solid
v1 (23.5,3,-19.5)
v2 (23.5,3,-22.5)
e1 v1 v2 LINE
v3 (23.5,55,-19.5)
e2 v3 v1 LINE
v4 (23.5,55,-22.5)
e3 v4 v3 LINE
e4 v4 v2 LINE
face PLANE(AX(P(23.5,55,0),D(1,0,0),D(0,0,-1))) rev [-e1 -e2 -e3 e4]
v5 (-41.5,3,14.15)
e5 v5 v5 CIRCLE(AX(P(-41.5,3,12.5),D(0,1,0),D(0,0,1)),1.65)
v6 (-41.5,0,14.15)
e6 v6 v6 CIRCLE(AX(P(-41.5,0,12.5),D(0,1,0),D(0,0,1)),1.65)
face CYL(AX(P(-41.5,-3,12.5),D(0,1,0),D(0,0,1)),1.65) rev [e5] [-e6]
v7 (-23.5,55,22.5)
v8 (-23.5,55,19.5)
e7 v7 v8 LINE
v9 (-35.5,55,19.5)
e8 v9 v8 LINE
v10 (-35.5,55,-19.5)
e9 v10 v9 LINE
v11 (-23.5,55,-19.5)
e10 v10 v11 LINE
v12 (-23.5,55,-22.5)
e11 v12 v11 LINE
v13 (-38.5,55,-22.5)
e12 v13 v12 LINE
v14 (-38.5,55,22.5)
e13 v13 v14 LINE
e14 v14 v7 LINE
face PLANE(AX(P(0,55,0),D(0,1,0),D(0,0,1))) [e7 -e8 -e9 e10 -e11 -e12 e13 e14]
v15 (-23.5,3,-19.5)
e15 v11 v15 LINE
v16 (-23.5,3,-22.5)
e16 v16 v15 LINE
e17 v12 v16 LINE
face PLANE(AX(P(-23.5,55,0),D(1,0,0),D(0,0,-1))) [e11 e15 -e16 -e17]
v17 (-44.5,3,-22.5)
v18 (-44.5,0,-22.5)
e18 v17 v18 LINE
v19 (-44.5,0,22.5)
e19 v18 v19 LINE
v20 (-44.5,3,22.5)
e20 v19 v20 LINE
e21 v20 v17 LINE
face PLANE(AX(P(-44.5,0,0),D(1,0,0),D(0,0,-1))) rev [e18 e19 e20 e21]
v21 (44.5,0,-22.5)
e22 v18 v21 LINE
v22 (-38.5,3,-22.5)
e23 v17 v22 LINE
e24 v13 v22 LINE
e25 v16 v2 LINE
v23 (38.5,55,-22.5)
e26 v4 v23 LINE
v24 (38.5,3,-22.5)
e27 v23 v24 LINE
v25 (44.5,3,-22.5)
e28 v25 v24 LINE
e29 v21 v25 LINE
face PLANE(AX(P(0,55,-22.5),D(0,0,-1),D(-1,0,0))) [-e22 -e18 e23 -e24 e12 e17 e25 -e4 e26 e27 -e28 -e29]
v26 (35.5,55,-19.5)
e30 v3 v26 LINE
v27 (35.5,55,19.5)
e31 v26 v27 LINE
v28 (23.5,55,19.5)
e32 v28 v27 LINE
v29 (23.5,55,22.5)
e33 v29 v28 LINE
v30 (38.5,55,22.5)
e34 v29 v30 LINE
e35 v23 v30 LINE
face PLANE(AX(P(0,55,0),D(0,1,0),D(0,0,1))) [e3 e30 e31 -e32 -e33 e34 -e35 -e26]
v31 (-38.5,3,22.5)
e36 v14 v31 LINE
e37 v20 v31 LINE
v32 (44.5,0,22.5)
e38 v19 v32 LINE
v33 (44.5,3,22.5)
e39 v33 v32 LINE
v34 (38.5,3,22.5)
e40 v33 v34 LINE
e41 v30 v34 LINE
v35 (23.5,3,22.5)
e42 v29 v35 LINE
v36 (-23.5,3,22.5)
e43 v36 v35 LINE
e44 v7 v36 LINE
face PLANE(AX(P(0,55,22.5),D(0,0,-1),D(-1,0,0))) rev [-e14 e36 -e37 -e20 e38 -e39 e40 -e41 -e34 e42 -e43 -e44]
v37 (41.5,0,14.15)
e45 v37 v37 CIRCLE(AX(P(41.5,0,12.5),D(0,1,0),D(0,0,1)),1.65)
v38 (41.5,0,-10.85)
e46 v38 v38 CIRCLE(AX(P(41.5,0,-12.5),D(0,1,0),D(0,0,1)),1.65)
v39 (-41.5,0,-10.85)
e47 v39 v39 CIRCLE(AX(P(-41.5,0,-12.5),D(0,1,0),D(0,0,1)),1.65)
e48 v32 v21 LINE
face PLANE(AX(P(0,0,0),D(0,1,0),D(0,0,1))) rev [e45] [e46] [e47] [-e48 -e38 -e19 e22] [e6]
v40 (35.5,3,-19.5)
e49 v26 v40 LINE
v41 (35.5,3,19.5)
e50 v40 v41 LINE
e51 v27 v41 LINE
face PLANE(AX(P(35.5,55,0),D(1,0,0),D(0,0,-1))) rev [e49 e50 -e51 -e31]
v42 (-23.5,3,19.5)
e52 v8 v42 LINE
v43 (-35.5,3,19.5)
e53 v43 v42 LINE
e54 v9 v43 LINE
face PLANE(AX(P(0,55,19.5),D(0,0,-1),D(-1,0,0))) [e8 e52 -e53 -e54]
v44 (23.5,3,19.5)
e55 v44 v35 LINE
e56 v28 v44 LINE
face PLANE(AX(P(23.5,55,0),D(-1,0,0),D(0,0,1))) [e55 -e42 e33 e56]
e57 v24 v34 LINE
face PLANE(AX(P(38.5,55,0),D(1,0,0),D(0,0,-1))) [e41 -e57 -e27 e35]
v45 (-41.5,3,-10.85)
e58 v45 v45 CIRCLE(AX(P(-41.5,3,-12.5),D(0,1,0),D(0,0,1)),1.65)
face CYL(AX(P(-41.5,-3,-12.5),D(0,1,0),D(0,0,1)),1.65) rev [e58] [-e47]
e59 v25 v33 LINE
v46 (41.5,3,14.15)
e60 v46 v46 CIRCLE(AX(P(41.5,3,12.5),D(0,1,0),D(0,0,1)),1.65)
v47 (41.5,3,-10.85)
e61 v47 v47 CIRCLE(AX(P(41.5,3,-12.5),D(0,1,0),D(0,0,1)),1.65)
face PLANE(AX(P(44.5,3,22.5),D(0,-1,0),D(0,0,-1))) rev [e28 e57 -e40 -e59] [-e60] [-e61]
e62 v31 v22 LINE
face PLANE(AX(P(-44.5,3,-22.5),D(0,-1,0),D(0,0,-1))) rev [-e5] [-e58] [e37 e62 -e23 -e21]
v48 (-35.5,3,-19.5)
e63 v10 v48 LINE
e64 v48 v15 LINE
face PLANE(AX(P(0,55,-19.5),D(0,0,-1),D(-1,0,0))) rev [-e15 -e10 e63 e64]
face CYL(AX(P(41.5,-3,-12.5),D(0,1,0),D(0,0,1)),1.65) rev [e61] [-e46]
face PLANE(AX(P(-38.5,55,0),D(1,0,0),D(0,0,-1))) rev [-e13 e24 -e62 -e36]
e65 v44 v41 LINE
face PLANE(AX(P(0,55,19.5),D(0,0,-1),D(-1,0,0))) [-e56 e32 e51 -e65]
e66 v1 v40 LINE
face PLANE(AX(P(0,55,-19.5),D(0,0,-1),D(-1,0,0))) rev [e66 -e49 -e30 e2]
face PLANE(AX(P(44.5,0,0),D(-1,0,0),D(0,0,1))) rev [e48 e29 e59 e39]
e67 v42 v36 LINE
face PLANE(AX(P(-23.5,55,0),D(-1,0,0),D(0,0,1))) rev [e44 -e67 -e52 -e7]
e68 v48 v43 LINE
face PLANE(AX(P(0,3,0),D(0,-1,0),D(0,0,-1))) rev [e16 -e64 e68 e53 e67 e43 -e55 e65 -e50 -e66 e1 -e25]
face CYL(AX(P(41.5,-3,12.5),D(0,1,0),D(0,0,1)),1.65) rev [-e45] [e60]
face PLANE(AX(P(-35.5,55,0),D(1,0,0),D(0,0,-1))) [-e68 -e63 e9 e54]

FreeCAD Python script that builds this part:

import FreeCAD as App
import Part
import Sketcher

V = App.Vector

doc = App.newDocument("Part")
body = doc.addObject("PartDesign::Body", "Body")
body.AllowCompound = True

sketch1 = body.newObject("Sketcher::SketchObject", "Sketch")
sketch1.AttachmentSupport = (doc.getObject("XZ_Plane"), [""])
sketch1.MapMode = "FlatFace"
sketch1.addGeometry([
    Part.LineSegment(V(-35.5, -19.5, 0), V(-23.5, -19.5, 0)),
    Part.LineSegment(V(-23.5, -19.5, 0), V(-23.5, -22.5, 0)),
    Part.LineSegment(V(-23.5, -22.5, 0), V(-38.5, -22.5, 0)),
    Part.LineSegment(V(-38.5, -22.5, 0), V(-38.5, 22.5, 0)),
    Part.LineSegment(V(-38.5, 22.5, 0), V(-23.5, 22.5, 0)),
    Part.LineSegment(V(-23.5, 22.5, 0), V(-23.5, 19.5, 0)),
    Part.LineSegment(V(-23.5, 19.5, 0), V(-35.5, 19.5, 0)),
    Part.LineSegment(V(-35.5, 19.5, 0), V(-35.5, -19.5, 0)),
    Part.LineSegment(V(23.5, -22.5, 0), V(23.5, -19.5, 0)),
    Part.LineSegment(V(23.5, -19.5, 0), V(35.5, -19.5, 0)),
    Part.LineSegment(V(35.5, -19.5, 0), V(35.5, 19.5, 0)),
    Part.LineSegment(V(35.5, 19.5, 0), V(23.5, 19.5, 0)),
    Part.LineSegment(V(23.5, 19.5, 0), V(23.5, 22.5, 0)),
    Part.LineSegment(V(23.5, 22.5, 0), V(38.5, 22.5, 0)),
    Part.LineSegment(V(38.5, 22.5, 0), V(38.5, -22.5, 0)),
    Part.LineSegment(V(38.5, -22.5, 0), V(23.5, -22.5, 0)),
], False)
sketch1.addConstraint([
    Sketcher.Constraint("Coincident", 0, 2, 1, 1),
    Sketcher.Constraint("Coincident", 1, 2, 2, 1),
    Sketcher.Constraint("Coincident", 2, 2, 3, 1),
    Sketcher.Constraint("Coincident", 3, 2, 4, 1),
    Sketcher.Constraint("Coincident", 4, 2, 5, 1),
    Sketcher.Constraint("Coincident", 5, 2, 6, 1),
    Sketcher.Constraint("Coincident", 6, 2, 7, 1),
    Sketcher.Constraint("Coincident", 7, 2, 0, 1),
    Sketcher.Constraint("Coincident", 8, 2, 9, 1),
    Sketcher.Constraint("Coincident", 9, 2, 10, 1),
    Sketcher.Constraint("Coincident", 10, 2, 11, 1),
    Sketcher.Constraint("Coincident", 11, 2, 12, 1),
    Sketcher.Constraint("Coincident", 12, 2, 13, 1),
    Sketcher.Constraint("Coincident", 13, 2, 14, 1),
    Sketcher.Constraint("Coincident", 14, 2, 15, 1),
    Sketcher.Constraint("Coincident", 15, 2, 8, 1),
    Sketcher.Constraint("Horizontal", 0),
    Sketcher.Constraint("Vertical", 1),
    Sketcher.Constraint("Horizontal", 2),
    Sketcher.Constraint("Vertical", 3),
    Sketcher.Constraint("Horizontal", 4),
    Sketcher.Constraint("Vertical", 5),
    Sketcher.Constraint("Horizontal", 6),
    Sketcher.Constraint("Vertical", 7),
    Sketcher.Constraint("Vertical", 8),
    Sketcher.Constraint("Horizontal", 9),
    Sketcher.Constraint("Vertical", 10),
    Sketcher.Constraint("Horizontal", 11),
    Sketcher.Constraint("Vertical", 12),
    Sketcher.Constraint("Horizontal", 13),
    Sketcher.Constraint("Vertical", 14),
    Sketcher.Constraint("Horizontal", 15),
    Sketcher.Constraint("Symmetric", 5, 2, 8, 2, -1, 1),
    Sketcher.Constraint("Symmetric", 7, 2, 10, 2, -1, 1),
    Sketcher.Constraint("Symmetric", 1, 2, 12, 2, -1, 1),
    Sketcher.Constraint("Symmetric", 3, 2, 14, 2, -1, 1),
    Sketcher.Constraint("Symmetric", 0, 2, 8, 2, -2),
    Sketcher.Constraint("Horizontal", 4, 2, 12, 2),
    Sketcher.Constraint("DistanceX", 0, 1, 0, 2, 12.0),
    Sketcher.Constraint("DistanceX", 2, 2, 2, 1, 15.0),
    Sketcher.Constraint("DistanceY", 1, 2, 1, 1, 3.0),
    Sketcher.Constraint("DistanceY", 3, 1, 3, 2, 45.0),
    Sketcher.Constraint("DistanceX", 0, 2, 8, 2, 47.0),
])
pad1 = body.newObject("PartDesign::Pad", "Pad")
pad1.Profile = sketch1
pad1.Length = 55
pad1.Reversed = True

sketch2 = body.newObject("Sketcher::SketchObject", "Sketch001")
sketch2.AttachmentSupport = (doc.getObject("XZ_Plane"), [""])
sketch2.MapMode = "FlatFace"
sketch2.addGeometry([
    Part.LineSegment(V(-23.5, 22.5, 0), V(-23.5, 19.5, 0)),
    Part.LineSegment(V(-23.5, 19.5, 0), V(-35.5, 19.5, 0)),
    Part.LineSegment(V(-35.5, 19.5, 0), V(-35.5, -19.5, 0)),
    Part.LineSegment(V(-35.5, -19.5, 0), V(-23.5, -19.5, 0)),
    Part.LineSegment(V(-23.5, -19.5, 0), V(-23.5, -22.5, 0)),
    Part.LineSegment(V(-23.5, -22.5, 0), V(23.5, -22.5, 0)),
    Part.LineSegment(V(23.5, -22.5, 0), V(23.5, -19.5, 0)),
    Part.LineSegment(V(23.5, -19.5, 0), V(35.5, -19.5, 0)),
    Part.LineSegment(V(35.5, -19.5, 0), V(35.5, 19.5, 0)),
    Part.LineSegment(V(35.5, 19.5, 0), V(23.5, 19.5, 0)),
    Part.LineSegment(V(23.5, 19.5, 0), V(23.5, 22.5, 0)),
    Part.LineSegment(V(23.5, 22.5, 0), V(-23.5, 22.5, 0)),
], False)
sketch2.addConstraint([
    Sketcher.Constraint("Coincident", 0, 2, 1, 1),
    Sketcher.Constraint("Coincident", 1, 2, 2, 1),
    Sketcher.Constraint("Coincident", 2, 2, 3, 1),
    Sketcher.Constraint("Coincident", 3, 2, 4, 1),
    Sketcher.Constraint("Coincident", 4, 2, 5, 1),
    Sketcher.Constraint("Coincident", 5, 2, 6, 1),
    Sketcher.Constraint("Coincident", 6, 2, 7, 1),
    Sketcher.Constraint("Coincident", 7, 2, 8, 1),
    Sketcher.Constraint("Coincident", 8, 2, 9, 1),
    Sketcher.Constraint("Coincident", 9, 2, 10, 1),
    Sketcher.Constraint("Coincident", 10, 2, 11, 1),
    Sketcher.Constraint("Coincident", 11, 2, 0, 1),
    Sketcher.Constraint("Vertical", 0),
    Sketcher.Constraint("Horizontal", 1),
    Sketcher.Constraint("Vertical", 2),
    Sketcher.Constraint("Horizontal", 3),
    Sketcher.Constraint("Vertical", 4),
    Sketcher.Constraint("Horizontal", 5),
    Sketcher.Constraint("Vertical", 6),
    Sketcher.Constraint("Horizontal", 7),
    Sketcher.Constraint("Vertical", 8),
    Sketcher.Constraint("Horizontal", 9),
    Sketcher.Constraint("Vertical", 10),
    Sketcher.Constraint("Horizontal", 11),
    Sketcher.Constraint("Symmetric", 0, 2, 6, 2, -1, 1),
    Sketcher.Constraint("Symmetric", 2, 2, 8, 2, -1, 1),
    Sketcher.Constraint("Symmetric", 4, 2, 10, 2, -1, 1),
    Sketcher.Constraint("Symmetric", 3, 2, 6, 2, -2),
    Sketcher.Constraint("DistanceX", 1, 2, 1, 1, 12.0),
    Sketcher.Constraint("DistanceX", 5, 1, 5, 2, 47.0),
    Sketcher.Constraint("DistanceY", 0, 2, 0, 1, 3.0),
    Sketcher.Constraint("DistanceY", 2, 2, 2, 1, 39.0),
])
pad2 = body.newObject("PartDesign::Pad", "Pad001")
pad2.Profile = sketch2
pad2.Length = 3
pad2.Reversed = True

sketch3 = body.newObject("Sketcher::SketchObject", "Sketch002")
sketch3.AttachmentSupport = (doc.getObject("YZ_Plane"), [""])
sketch3.MapMode = "FlatFace"
sketch3.AttachmentOffset = App.Placement(V(0, 0, 38.5), App.Rotation())
sketch3.addGeometry([
    Part.LineSegment(V(3, 22.5, 0), V(0, 22.5, 0)),
    Part.LineSegment(V(0, 22.5, 0), V(0, -22.5, 0)),
    Part.LineSegment(V(0, -22.5, 0), V(3, -22.5, 0)),
    Part.LineSegment(V(3, -22.5, 0), V(3, 22.5, 0)),
], False)
sketch3.addConstraint([
    Sketcher.Constraint("Coincident", 0, 2, 1, 1),
    Sketcher.Constraint("Coincident", 1, 2, 2, 1),
    Sketcher.Constraint("Coincident", 2, 2, 3, 1),
    Sketcher.Constraint("Coincident", 3, 2, 0, 1),
    Sketcher.Constraint("Horizontal", 0),
    Sketcher.Constraint("Vertical", 1),
    Sketcher.Constraint("Horizontal", 2),
    Sketcher.Constraint("Vertical", 3),
    Sketcher.Constraint("Symmetric", 0, 2, 1, 2, -1, 1),
    Sketcher.Constraint("DistanceX", 0, 2, 0, 1, 3.0),
    Sketcher.Constraint("DistanceY", 1, 2, 1, 1, 45.0),
])
pad3 = body.newObject("PartDesign::Pad", "Pad002")
pad3.Profile = sketch3
pad3.Length = 6

sketch4 = body.newObject("Sketcher::SketchObject", "Sketch003")
sketch4.AttachmentSupport = (doc.getObject("XZ_Plane"), [""])
sketch4.MapMode = "FlatFace"
sketch4.AttachmentOffset = App.Placement(V(0, 0, -3), App.Rotation())
sketch4.addGeometry([
    Part.Circle(V(41.5, 12.5, 0), V(0, 0, 1), 1.6),
    Part.Circle(V(41.5, -12.5, 0), V(0, 0, 1), 1.6),
], False)
sketch4.addConstraint([
    Sketcher.Constraint("Equal", 0, 1),
    Sketcher.Constraint("Symmetric", 0, 3, 1, 3, -1),
    Sketcher.Constraint("Diameter", 0, 3.3),
    Sketcher.Constraint("DistanceY", 1, 3, 0, 3, 25.0),
    Sketcher.Constraint("DistanceX", -1, 1, 0, 3, 41.5),
])
pocket1 = body.newObject("PartDesign::Pocket", "Pocket")
pocket1.Profile = sketch4
pocket1.Length = 6
pocket1.Reversed = True

sketch5 = body.newObject("Sketcher::SketchObject", "Sketch004")
sketch5.AttachmentSupport = (doc.getObject("YZ_Plane"), [""])
sketch5.MapMode = "FlatFace"
sketch5.AttachmentOffset = App.Placement(V(0, 0, -38.5), App.Rotation())
sketch5.addGeometry([
    Part.LineSegment(V(3, -22.5, 0), V(0, -22.5, 0)),
    Part.LineSegment(V(0, -22.5, 0), V(0, 22.5, 0)),
    Part.LineSegment(V(0, 22.5, 0), V(3, 22.5, 0)),
    Part.LineSegment(V(3, 22.5, 0), V(3, -22.5, 0)),
], False)
sketch5.addConstraint([
    Sketcher.Constraint("Coincident", 0, 2, 1, 1),
    Sketcher.Constraint("Coincident", 1, 2, 2, 1),
    Sketcher.Constraint("Coincident", 2, 2, 3, 1),
    Sketcher.Constraint("Coincident", 3, 2, 0, 1),
    Sketcher.Constraint("Horizontal", 0),
    Sketcher.Constraint("Vertical", 1),
    Sketcher.Constraint("Horizontal", 2),
    Sketcher.Constraint("Vertical", 3),
    Sketcher.Constraint("Symmetric", 0, 2, 1, 2, -1, 1),
    Sketcher.Constraint("DistanceX", 0, 2, 0, 1, 3.0),
    Sketcher.Constraint("DistanceY", 1, 1, 1, 2, 45.0),
])
pad4 = body.newObject("PartDesign::Pad", "Pad003")
pad4.Profile = sketch5
pad4.Length = 6
pad4.Reversed = True

sketch6 = body.newObject("Sketcher::SketchObject", "Sketch005")
sketch6.AttachmentSupport = (doc.getObject("XZ_Plane"), [""])
sketch6.MapMode = "FlatFace"
sketch6.AttachmentOffset = App.Placement(V(0, 0, -3), App.Rotation())
sketch6.addGeometry([
    Part.Circle(V(-41.5, -12.5, 0), V(0, 0, 1), 1.6),
    Part.Circle(V(-41.5, 12.5, 0), V(0, 0, 1), 1.6),
], False)
sketch6.addConstraint([
    Sketcher.Constraint("Equal", 0, 1),
    Sketcher.Constraint("Symmetric", 0, 3, 1, 3, -1),
    Sketcher.Constraint("Diameter", 0, 3.3),
    Sketcher.Constraint("DistanceY", 0, 3, 1, 3, 25.0),
    Sketcher.Constraint("DistanceX", 0, 3, -1, 1, 41.5),
])
pocket2 = body.newObject("PartDesign::Pocket", "Pocket001")
pocket2.Profile = sketch6
pocket2.Length = 6
pocket2.Reversed = True

doc.recompute()
